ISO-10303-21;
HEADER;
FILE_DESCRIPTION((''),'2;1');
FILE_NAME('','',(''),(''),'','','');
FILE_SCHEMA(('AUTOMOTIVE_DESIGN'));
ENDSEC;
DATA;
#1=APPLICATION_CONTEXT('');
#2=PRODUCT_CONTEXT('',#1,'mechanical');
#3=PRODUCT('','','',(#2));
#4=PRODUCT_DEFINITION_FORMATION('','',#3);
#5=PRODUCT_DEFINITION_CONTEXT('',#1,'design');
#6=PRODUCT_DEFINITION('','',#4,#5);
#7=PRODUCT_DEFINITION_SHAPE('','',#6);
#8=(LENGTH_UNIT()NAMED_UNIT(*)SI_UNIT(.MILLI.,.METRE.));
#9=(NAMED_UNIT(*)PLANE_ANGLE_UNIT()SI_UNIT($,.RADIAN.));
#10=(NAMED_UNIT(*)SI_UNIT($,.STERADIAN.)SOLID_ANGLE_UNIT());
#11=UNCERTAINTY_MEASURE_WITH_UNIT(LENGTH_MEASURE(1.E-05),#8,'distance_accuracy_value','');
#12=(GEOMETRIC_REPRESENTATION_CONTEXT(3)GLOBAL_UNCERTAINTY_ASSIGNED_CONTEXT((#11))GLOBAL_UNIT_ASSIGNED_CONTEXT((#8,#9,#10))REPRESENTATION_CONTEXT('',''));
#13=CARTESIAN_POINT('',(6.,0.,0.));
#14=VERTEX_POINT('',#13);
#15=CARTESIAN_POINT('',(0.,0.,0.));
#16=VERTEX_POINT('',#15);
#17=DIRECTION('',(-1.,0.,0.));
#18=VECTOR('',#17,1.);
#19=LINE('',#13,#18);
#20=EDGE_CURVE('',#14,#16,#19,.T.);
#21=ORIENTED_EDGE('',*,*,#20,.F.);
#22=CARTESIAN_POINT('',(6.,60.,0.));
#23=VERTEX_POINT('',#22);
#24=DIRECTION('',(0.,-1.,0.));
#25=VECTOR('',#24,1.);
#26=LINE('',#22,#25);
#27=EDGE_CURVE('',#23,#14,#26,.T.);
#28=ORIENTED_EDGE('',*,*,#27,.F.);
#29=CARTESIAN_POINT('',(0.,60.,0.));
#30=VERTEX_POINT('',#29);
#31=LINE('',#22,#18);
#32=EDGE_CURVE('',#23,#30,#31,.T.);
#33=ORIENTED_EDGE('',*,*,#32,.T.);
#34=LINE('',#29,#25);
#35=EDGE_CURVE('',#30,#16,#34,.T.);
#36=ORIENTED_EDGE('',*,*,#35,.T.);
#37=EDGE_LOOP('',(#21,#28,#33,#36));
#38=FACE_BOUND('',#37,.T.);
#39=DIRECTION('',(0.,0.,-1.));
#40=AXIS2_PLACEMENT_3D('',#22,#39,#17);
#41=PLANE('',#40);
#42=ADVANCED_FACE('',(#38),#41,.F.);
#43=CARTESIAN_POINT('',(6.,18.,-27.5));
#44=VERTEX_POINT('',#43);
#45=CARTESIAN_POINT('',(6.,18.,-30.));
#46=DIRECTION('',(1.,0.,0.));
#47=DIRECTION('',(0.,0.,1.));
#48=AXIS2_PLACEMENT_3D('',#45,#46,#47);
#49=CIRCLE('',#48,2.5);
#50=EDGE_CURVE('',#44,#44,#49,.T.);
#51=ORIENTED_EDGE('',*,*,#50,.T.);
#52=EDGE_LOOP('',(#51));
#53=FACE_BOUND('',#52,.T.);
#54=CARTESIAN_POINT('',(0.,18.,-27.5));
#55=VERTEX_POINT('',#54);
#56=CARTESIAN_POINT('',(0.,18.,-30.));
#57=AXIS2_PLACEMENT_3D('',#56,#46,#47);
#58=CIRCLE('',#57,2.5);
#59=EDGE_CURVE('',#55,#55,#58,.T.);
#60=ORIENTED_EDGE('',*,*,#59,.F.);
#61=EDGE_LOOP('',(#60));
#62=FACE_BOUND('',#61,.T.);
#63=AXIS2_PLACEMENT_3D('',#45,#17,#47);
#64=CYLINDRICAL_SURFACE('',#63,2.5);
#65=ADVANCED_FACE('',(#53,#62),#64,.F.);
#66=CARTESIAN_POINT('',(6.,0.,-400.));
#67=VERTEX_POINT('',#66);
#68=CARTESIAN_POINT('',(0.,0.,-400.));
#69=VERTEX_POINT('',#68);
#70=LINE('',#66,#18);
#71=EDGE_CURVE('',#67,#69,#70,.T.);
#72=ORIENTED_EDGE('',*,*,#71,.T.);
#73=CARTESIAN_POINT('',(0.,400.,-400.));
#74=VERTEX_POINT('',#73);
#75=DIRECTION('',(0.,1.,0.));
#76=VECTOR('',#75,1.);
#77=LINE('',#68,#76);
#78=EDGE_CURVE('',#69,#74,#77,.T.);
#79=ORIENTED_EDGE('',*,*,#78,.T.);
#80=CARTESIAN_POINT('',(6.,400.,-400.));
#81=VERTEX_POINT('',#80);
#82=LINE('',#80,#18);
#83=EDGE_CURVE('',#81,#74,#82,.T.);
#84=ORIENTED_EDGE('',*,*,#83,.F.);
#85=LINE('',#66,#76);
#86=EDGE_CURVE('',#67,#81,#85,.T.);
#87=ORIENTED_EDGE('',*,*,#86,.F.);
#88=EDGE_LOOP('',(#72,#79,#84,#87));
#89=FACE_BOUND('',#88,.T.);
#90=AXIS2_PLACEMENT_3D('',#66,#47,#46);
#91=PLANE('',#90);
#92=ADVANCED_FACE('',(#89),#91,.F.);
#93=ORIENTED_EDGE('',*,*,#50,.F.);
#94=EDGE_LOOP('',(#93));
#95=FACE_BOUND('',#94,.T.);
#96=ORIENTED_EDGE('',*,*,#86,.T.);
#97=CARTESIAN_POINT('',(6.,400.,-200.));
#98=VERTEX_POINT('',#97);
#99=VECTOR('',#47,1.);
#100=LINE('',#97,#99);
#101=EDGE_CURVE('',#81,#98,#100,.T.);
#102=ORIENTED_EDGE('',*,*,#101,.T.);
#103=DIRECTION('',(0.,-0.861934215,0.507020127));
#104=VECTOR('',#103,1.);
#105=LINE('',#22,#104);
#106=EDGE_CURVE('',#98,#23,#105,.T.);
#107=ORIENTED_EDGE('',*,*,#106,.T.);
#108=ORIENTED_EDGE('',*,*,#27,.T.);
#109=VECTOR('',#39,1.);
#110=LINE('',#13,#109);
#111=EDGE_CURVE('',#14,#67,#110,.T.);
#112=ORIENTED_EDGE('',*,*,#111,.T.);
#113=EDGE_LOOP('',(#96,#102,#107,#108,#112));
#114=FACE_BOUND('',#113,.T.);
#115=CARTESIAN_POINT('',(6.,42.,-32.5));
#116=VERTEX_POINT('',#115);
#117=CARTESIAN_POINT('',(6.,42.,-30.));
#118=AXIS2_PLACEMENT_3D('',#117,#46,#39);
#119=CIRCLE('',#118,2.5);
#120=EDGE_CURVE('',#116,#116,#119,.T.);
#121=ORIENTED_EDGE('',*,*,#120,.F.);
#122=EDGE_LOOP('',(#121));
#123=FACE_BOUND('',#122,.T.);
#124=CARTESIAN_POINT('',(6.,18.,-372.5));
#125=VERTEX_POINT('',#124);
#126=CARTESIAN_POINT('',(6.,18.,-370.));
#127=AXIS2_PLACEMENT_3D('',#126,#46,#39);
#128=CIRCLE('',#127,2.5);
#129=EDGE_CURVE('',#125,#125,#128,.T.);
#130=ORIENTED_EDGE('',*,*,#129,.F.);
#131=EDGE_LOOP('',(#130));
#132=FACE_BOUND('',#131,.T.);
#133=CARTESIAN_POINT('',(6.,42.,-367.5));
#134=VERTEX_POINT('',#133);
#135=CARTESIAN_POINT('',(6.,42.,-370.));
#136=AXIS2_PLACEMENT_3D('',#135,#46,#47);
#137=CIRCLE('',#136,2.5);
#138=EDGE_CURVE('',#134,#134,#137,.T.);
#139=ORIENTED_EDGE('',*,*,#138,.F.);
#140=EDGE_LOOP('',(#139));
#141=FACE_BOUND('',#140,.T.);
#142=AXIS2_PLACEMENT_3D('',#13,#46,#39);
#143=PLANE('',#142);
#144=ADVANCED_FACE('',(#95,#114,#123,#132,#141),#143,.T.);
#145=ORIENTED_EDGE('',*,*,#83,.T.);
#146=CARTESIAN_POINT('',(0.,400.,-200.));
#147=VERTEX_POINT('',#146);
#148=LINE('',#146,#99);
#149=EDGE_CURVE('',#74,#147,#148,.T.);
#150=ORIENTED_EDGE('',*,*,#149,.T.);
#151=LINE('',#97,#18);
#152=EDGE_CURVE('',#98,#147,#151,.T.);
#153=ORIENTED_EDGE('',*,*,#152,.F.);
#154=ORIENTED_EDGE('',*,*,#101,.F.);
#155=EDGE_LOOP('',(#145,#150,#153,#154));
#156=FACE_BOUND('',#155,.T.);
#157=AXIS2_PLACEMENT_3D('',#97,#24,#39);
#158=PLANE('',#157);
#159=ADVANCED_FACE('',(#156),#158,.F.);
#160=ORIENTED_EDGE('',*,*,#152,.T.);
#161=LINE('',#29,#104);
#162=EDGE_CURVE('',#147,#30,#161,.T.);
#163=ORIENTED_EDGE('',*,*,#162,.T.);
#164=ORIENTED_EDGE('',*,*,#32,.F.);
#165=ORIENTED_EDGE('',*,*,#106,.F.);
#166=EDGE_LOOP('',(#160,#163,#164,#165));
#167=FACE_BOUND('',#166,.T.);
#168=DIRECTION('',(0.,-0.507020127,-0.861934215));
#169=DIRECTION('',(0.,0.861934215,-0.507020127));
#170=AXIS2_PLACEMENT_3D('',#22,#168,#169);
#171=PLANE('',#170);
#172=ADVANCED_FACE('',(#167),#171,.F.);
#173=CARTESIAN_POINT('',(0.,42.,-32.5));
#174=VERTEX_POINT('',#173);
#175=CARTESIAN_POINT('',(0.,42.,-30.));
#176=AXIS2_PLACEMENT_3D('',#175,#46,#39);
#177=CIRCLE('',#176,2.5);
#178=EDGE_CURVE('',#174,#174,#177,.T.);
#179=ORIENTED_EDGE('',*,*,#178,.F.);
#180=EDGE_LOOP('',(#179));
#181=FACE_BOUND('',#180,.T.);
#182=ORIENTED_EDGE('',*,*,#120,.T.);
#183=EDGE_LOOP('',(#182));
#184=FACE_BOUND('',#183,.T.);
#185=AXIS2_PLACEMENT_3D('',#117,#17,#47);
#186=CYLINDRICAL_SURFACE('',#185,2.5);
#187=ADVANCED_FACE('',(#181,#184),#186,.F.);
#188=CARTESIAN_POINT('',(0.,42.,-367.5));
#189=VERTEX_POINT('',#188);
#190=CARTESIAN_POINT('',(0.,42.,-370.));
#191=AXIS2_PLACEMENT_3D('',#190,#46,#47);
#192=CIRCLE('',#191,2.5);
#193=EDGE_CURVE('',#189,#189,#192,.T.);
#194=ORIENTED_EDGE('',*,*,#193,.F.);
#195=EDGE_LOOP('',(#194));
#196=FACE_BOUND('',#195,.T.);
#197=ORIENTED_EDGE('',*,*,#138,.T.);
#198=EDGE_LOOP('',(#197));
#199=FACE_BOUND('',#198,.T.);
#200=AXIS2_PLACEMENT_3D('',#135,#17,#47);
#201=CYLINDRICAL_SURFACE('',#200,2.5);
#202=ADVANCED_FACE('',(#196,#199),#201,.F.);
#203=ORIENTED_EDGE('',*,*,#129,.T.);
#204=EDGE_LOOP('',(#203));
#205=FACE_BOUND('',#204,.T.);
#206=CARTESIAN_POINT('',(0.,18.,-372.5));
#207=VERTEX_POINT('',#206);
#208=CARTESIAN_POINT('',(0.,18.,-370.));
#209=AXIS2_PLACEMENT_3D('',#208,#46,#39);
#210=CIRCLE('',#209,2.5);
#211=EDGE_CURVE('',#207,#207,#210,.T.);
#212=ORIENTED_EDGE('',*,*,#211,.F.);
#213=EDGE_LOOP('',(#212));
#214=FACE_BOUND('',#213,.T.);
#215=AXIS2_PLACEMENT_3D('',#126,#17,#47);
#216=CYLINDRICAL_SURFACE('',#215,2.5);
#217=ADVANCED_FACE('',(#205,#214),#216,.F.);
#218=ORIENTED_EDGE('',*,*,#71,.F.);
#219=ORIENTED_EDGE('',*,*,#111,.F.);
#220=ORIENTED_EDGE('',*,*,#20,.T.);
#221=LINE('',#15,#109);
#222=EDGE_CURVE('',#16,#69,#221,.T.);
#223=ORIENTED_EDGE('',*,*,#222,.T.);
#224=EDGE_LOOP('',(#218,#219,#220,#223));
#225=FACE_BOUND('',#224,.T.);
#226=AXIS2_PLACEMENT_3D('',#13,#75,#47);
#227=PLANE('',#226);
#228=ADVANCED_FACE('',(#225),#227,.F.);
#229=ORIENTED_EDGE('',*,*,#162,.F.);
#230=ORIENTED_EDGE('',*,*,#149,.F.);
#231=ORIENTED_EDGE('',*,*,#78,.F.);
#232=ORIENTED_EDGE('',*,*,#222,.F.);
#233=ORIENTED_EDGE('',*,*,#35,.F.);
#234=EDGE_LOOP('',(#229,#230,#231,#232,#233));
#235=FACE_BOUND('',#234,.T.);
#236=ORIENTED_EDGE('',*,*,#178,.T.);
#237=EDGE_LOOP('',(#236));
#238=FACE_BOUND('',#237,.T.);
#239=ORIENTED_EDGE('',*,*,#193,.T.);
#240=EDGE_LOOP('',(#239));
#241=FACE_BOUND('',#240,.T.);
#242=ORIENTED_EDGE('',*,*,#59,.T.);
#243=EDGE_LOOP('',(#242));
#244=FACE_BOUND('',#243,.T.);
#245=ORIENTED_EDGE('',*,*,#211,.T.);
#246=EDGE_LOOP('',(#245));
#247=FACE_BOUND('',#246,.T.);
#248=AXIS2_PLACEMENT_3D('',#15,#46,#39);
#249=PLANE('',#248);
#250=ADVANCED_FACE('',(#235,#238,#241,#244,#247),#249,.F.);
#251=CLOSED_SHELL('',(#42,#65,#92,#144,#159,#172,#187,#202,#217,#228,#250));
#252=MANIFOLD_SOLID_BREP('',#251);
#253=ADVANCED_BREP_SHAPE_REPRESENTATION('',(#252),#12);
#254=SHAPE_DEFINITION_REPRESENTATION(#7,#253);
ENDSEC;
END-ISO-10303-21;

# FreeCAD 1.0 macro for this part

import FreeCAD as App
import Part
import Sketcher
from FreeCAD import Vector


def add_polygon(sketch, points):
    """Adds a closed chain of lines whose ends are joined by coincident constraints."""
    first, n = sketch.GeometryCount, len(points)
    for a, b in zip(points, points[1:] + points[:1]):
        sketch.addGeometry(Part.LineSegment(App.Vector(*a, 0), App.Vector(*b, 0)), False)
    for i in range(n):
        sketch.addConstraint(Sketcher.Constraint("Coincident", first + i, 2, first + (i + 1) % n, 1))

doc = App.newDocument("Part")
body = doc.addObject("PartDesign::Body", "Body")

sketch1 = body.newObject("Sketcher::SketchObject", "Sketch")
sketch1.AttachmentSupport = (doc.getObject("YZ_Plane"), [""])
sketch1.MapMode = "FlatFace"
add_polygon(sketch1, [(0, 0), (0, -400), (400, -400), (400, -200), (60, 0)])
sketch1.addGeometry(Part.Circle(Vector(18, -30, 0), Vector(0, 0, 1), 2.5), False)
sketch1.addGeometry(Part.Circle(Vector(18, -370, 0), Vector(0, 0, 1), 2.5), False)
sketch1.addGeometry(Part.Circle(Vector(42, -30, 0), Vector(0, 0, 1), 2.5), False)
sketch1.addGeometry(Part.Circle(Vector(42, -370, 0), Vector(0, 0, 1), 2.5), False)
sketch1.addConstraint([
    Sketcher.Constraint("Vertical", 0),
    Sketcher.Constraint("Horizontal", 1),
    Sketcher.Constraint("Vertical", 2),
    Sketcher.Constraint("Horizontal", 4),
    Sketcher.Constraint("Coincident", 4, 2, -1, 1),
    Sketcher.Constraint("Equal", 5, 6),
    Sketcher.Constraint("Equal", 6, 7),
    Sketcher.Constraint("Equal", 7, 8),
    Sketcher.Constraint("Horizontal", 5, 3, 7, 3),
    Sketcher.Constraint("Horizontal", 6, 3, 8, 3),
    Sketcher.Constraint("Vertical", 5, 3, 6, 3),
    Sketcher.Constraint("Vertical", 7, 3, 8, 3),
    Sketcher.Constraint("Equal", 1, 0),
    Sketcher.Constraint("Diameter", 5, 5.0),
    Sketcher.Constraint("DistanceX", 1, 1, 1, 2, 400.0),
    Sketcher.Constraint("DistanceX", 4, 2, 4, 1, 60.0),
    Sketcher.Constraint("DistanceY", 2, 1, 2, 2, 200.0),
    Sketcher.Constraint("DistanceX", -1, 1, 5, 3, 18.0),
    Sketcher.Constraint("DistanceY", 5, 3, -1, 1, 30.0),
    Sketcher.Constraint("DistanceY", 6, 3, -1, 1, 370.0),
    Sketcher.Constraint("DistanceX", -1, 1, 7, 3, 42.0),
])
pad1 = body.newObject("PartDesign::Pad", "Pad")
pad1.Profile = sketch1
pad1.Length = 6

doc.recompute()
